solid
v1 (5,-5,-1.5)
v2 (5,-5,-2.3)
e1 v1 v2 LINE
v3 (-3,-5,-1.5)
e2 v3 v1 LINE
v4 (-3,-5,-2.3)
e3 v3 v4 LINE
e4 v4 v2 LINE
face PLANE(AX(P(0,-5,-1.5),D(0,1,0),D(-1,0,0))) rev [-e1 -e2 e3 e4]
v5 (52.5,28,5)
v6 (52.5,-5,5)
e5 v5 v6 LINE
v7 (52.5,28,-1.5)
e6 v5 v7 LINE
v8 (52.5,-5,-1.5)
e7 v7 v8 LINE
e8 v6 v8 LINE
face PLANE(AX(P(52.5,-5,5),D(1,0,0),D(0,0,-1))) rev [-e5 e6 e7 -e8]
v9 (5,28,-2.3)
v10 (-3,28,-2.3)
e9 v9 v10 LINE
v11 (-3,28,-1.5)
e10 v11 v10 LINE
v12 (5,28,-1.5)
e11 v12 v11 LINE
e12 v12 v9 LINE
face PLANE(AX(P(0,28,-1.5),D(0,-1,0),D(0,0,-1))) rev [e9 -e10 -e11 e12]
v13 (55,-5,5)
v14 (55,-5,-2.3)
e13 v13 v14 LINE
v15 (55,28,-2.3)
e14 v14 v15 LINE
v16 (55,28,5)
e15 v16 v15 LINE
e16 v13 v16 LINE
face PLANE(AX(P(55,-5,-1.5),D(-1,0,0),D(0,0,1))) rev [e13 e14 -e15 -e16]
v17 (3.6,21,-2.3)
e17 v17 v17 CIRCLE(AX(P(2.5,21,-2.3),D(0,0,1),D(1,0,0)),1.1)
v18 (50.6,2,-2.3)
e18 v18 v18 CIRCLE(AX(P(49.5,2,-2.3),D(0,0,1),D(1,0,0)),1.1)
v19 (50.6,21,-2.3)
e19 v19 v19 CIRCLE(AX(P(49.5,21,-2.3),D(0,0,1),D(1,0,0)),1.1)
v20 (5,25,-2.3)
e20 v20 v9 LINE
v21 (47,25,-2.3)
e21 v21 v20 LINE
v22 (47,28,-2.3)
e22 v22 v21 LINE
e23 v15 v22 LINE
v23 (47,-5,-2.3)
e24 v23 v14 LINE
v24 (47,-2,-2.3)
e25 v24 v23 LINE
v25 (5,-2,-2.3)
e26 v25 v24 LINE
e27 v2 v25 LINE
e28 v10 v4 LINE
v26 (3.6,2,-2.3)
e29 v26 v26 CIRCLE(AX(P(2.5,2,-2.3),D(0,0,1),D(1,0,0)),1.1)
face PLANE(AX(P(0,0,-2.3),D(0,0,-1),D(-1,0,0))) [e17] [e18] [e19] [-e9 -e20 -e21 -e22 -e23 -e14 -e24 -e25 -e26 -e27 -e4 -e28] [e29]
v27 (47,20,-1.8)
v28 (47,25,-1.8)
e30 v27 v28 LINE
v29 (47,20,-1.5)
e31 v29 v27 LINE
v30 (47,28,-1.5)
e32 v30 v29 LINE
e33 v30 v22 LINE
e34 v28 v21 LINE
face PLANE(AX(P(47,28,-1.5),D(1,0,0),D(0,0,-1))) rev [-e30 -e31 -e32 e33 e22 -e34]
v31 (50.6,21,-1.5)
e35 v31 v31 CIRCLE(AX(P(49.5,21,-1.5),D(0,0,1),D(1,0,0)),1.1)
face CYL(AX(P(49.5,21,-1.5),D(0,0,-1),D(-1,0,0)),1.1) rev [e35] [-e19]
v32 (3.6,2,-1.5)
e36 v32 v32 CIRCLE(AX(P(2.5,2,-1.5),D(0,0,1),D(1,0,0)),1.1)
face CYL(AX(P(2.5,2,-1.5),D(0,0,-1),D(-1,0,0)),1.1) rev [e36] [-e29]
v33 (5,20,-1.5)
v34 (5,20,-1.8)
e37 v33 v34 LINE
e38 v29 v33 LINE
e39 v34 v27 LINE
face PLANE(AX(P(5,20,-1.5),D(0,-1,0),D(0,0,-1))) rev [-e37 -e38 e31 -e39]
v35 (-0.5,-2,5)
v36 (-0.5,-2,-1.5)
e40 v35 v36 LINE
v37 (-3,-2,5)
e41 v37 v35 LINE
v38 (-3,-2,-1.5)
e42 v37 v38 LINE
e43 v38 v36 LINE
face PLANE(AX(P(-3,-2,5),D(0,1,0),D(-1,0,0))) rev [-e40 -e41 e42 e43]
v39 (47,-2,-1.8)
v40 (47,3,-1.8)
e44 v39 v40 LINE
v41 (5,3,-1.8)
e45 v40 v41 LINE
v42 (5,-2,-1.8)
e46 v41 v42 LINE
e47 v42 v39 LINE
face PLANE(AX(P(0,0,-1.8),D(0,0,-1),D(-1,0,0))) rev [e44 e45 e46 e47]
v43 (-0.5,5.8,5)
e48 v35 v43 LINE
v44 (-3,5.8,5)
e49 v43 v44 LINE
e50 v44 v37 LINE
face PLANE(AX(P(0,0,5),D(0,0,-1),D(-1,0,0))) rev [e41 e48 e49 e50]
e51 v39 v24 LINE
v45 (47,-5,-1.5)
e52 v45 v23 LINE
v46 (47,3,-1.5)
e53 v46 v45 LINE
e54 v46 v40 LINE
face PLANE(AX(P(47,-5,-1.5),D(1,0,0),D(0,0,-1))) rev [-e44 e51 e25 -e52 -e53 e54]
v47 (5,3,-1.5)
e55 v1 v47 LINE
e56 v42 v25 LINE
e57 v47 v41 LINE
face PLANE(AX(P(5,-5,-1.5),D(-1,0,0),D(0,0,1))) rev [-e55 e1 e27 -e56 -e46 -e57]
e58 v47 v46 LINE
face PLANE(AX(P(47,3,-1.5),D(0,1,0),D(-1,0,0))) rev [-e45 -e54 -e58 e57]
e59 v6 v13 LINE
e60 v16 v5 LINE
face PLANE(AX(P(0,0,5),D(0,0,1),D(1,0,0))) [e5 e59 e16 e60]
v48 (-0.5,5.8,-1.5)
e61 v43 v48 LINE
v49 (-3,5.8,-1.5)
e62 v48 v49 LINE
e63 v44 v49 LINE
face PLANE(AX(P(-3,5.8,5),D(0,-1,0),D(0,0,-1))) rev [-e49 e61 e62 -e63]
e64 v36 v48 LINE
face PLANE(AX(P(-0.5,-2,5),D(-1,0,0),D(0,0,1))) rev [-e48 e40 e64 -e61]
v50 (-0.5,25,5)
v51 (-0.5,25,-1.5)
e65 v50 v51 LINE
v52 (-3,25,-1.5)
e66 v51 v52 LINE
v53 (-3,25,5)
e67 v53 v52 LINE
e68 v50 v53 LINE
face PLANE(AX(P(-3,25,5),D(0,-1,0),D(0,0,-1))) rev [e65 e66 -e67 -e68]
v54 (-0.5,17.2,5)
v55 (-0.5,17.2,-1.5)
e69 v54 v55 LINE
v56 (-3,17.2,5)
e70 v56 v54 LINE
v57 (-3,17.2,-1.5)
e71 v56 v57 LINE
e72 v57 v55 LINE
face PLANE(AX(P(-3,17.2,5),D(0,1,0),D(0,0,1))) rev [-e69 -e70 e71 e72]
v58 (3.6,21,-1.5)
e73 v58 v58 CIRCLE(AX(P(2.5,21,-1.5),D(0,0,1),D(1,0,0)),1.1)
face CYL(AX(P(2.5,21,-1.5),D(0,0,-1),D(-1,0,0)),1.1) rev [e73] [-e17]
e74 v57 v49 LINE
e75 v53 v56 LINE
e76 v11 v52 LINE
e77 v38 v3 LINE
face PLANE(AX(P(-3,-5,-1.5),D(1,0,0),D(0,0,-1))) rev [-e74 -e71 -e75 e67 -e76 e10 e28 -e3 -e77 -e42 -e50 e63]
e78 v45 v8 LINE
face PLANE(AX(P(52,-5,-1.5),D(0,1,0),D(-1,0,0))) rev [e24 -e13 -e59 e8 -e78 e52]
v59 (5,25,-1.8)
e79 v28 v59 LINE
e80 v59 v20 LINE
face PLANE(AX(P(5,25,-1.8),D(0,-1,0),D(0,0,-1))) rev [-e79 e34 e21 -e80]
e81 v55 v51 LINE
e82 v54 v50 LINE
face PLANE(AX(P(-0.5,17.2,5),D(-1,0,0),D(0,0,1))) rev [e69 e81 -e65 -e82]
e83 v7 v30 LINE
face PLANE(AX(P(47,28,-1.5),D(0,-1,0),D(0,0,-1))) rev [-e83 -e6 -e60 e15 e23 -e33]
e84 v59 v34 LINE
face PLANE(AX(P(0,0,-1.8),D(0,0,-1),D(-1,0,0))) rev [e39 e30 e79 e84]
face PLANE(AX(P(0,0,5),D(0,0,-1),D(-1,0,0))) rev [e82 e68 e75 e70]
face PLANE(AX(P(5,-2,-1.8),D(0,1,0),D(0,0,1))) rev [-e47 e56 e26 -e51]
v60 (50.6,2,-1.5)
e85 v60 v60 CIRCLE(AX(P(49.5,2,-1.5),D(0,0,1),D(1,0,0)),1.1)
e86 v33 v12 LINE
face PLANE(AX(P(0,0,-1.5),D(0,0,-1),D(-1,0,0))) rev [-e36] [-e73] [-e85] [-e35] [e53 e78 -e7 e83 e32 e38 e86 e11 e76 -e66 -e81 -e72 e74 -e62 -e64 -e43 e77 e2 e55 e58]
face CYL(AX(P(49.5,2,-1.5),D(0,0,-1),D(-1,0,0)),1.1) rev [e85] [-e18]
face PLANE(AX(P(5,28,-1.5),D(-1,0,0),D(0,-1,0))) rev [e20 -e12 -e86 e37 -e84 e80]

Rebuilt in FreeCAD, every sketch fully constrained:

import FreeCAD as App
import Part
import Sketcher
from FreeCAD import Vector
Q = App.Units.Quantity

doc = App.newDocument("Part")
body = doc.addObject("PartDesign::Body", "Body")

# Sketch on XY plane
sketch1 = body.newObject("Sketcher::SketchObject", "Sketch")
sketch1.AttachmentSupport = (doc.getObject("XY_Plane"), [""])
sketch1.MapMode = "FlatFace"
sketch1.AttachmentOffset = App.Placement(Vector(0, 0, -2.3), App.Rotation())
sketch1.addGeometry([
    Part.LineSegment(Vector(55, -5, 0), Vector(55, 28, 0)),  # 0
    Part.LineSegment(Vector(55, 28, 0), Vector(47, 28, 0)),  # 1
    Part.LineSegment(Vector(47, 28, 0), Vector(47, 20, 0)),  # 2
    Part.LineSegment(Vector(47, 20, 0), Vector(5, 20, 0)),  # 3
    Part.LineSegment(Vector(5, 20, 0), Vector(5, 28, 0)),  # 4
    Part.LineSegment(Vector(5, 28, 0), Vector(-3, 28, 0)),  # 5
    Part.LineSegment(Vector(-3, 28, 0), Vector(-3, -5, 0)),  # 6
    Part.LineSegment(Vector(-3, -5, 0), Vector(5, -5, 0)),  # 7
    Part.LineSegment(Vector(5, -5, 0), Vector(5, 3, 0)),  # 8
    Part.LineSegment(Vector(5, 3, 0), Vector(47, 3, 0)),  # 9
    Part.LineSegment(Vector(47, 3, 0), Vector(47, -5, 0)),  # 10
    Part.LineSegment(Vector(47, -5, 0), Vector(55, -5, 0)),  # 11
    Part.Circle(Vector(2.5, 2, 0), Vector(0, 0, 1), 1.1),  # 12
    Part.Circle(Vector(49.5, 2, 0), Vector(0, 0, 1), 1.1),  # 13
    Part.Circle(Vector(2.5, 21, 0), Vector(0, 0, 1), 1.1),  # 14
    Part.Circle(Vector(49.5, 21, 0), Vector(0, 0, 1), 1.1),  # 15
], False)
sketch1.addConstraint([
    Sketcher.Constraint("Coincident", 0, 2, 1, 1),
    Sketcher.Constraint("Coincident", 1, 2, 2, 1),
    Sketcher.Constraint("Coincident", 2, 2, 3, 1),
    Sketcher.Constraint("Coincident", 3, 2, 4, 1),
    Sketcher.Constraint("Coincident", 4, 2, 5, 1),
    Sketcher.Constraint("Coincident", 5, 2, 6, 1),
    Sketcher.Constraint("Coincident", 6, 2, 7, 1),
    Sketcher.Constraint("Coincident", 7, 2, 8, 1),
    Sketcher.Constraint("Coincident", 8, 2, 9, 1),
    Sketcher.Constraint("Coincident", 9, 2, 10, 1),
    Sketcher.Constraint("Coincident", 10, 2, 11, 1),
    Sketcher.Constraint("Coincident", 11, 2, 0, 1),
    Sketcher.Constraint("Vertical", 0),
    Sketcher.Constraint("Horizontal", 1),
    Sketcher.Constraint("Vertical", 2),
    Sketcher.Constraint("Horizontal", 3),
    Sketcher.Constraint("Vertical", 4),
    Sketcher.Constraint("Horizontal", 5),
    Sketcher.Constraint("Vertical", 6),
    Sketcher.Constraint("Horizontal", 7),
    Sketcher.Constraint("Vertical", 8),
    Sketcher.Constraint("Horizontal", 9),
    Sketcher.Constraint("Vertical", 10),
    Sketcher.Constraint("Horizontal", 11),
    Sketcher.Constraint("Equal", 12, 13),
    Sketcher.Constraint("Equal", 13, 14),
    Sketcher.Constraint("Equal", 14, 15),
    Sketcher.Constraint("Horizontal", 12, 3, 13, 3),
    Sketcher.Constraint("Horizontal", 14, 3, 15, 3),
    Sketcher.Constraint("Horizontal", 1, 2, 4, 2),
    Sketcher.Constraint("Horizontal", 7, 2, 10, 2),
    Sketcher.Constraint("Vertical", 12, 3, 14, 3),
    Sketcher.Constraint("Vertical", 13, 3, 15, 3),
    Sketcher.Constraint("Vertical", 4, 2, 7, 2),
    Sketcher.Constraint("Vertical", 2, 2, 9, 2),
    Sketcher.Constraint("Equal", 1, 5),
    Sketcher.Constraint("Equal", 11, 2),
    Sketcher.Constraint("Equal", 4, 8),
    Sketcher.Constraint("Diameter", 12, Q("2.2 mm")),
    Sketcher.Constraint("DistanceX", 1, 2, 1, 1, Q("8 mm")),
    Sketcher.Constraint("DistanceX", 3, 2, 3, 1, Q("42 mm")),
    Sketcher.Constraint("DistanceY", 0, 1, 0, 2, Q("33 mm")),
    Sketcher.Constraint("DistanceY", -1, 1, 12, 3, Q("2 mm")),
    Sketcher.Constraint("DistanceY", -1, 1, 14, 3, Q("21 mm")),
    Sketcher.Constraint("DistanceX", -1, 1, 0, 2, Q("55 mm")),
    Sketcher.Constraint("DistanceY", -1, 1, 0, 2, Q("28 mm")),
    Sketcher.Constraint("DistanceX", 12, 3, 13, 3, Q("47 mm")),
    Sketcher.Constraint("DistanceX", -1, 1, 12, 3, Q("2.5 mm")),
])
pad1 = body.newObject("PartDesign::Pad", "Pad")
pad1.Profile = sketch1
pad1.Length = 0.8

# Sketch on XY plane
sketch2 = body.newObject("Sketcher::SketchObject", "Sketch001")
sketch2.AttachmentSupport = (doc.getObject("XY_Plane"), [""])
sketch2.MapMode = "FlatFace"
sketch2.AttachmentOffset = App.Placement(Vector(0, 0, -2.3), App.Rotation())
sketch2.addGeometry([
    Part.LineSegment(Vector(5, 25, 0), Vector(5, -2, 0)),
    Part.LineSegment(Vector(5, -2, 0), Vector(47, -2, 0)),
    Part.LineSegment(Vector(47, -2, 0), Vector(47, 25, 0)),
    Part.LineSegment(Vector(47, 25, 0), Vector(5, 25, 0)),
], False)
sketch2.addConstraint([
    Sketcher.Constraint("Coincident", 0, 2, 1, 1),
    Sketcher.Constraint("Coincident", 1, 2, 2, 1),
    Sketcher.Constraint("Coincident", 2, 2, 3, 1),
    Sketcher.Constraint("Coincident", 3, 2, 0, 1),
    Sketcher.Constraint("Vertical", 0),
    Sketcher.Constraint("Horizontal", 1),
    Sketcher.Constraint("Vertical", 2),
    Sketcher.Constraint("Horizontal", 3),
    Sketcher.Constraint("DistanceX", 1, 1, 1, 2, Q("42 mm")),
    Sketcher.Constraint("DistanceY", 0, 2, 0, 1, Q("27 mm")),
    Sketcher.Constraint("DistanceX", -1, 1, 0, 2, Q("5 mm")),
    Sketcher.Constraint("DistanceY", 0, 2, -1, 1, Q("2 mm")),
])
pad2 = body.newObject("PartDesign::Pad", "Pad001")
pad2.Profile = sketch2
pad2.Length = 0.5

# Sketch on XY plane
sketch3 = body.newObject("Sketcher::SketchObject", "Sketch002")
sketch3.AttachmentSupport = (doc.getObject("XY_Plane"), [""])
sketch3.MapMode = "FlatFace"
sketch3.AttachmentOffset = App.Placement(Vector(0, 0, -1.5), App.Rotation())
sketch3.addGeometry([
    Part.LineSegment(Vector(52.5, 28, 0), Vector(52.5, -5, 0)),  # 0
    Part.LineSegment(Vector(52.5, -5, 0), Vector(55, -5, 0)),  # 1
    Part.LineSegment(Vector(55, -5, 0), Vector(55, 28, 0)),  # 2
    Part.LineSegment(Vector(55, 28, 0), Vector(52.5, 28, 0)),  # 3
    Part.LineSegment(Vector(-3, 5.8, 0), Vector(-3, -2, 0)),  # 4
    Part.LineSegment(Vector(-3, -2, 0), Vector(-0.5, -2, 0)),  # 5
    Part.LineSegment(Vector(-0.5, -2, 0), Vector(-0.5, 5.8, 0)),  # 6
    Part.LineSegment(Vector(-0.5, 5.8, 0), Vector(-3, 5.8, 0)),  # 7
    Part.LineSegment(Vector(-3, 25, 0), Vector(-3, 17.2, 0)),  # 8
    Part.LineSegment(Vector(-3, 17.2, 0), Vector(-0.5, 17.2, 0)),  # 9
    Part.LineSegment(Vector(-0.5, 17.2, 0), Vector(-0.5, 25, 0)),  # 10
    Part.LineSegment(Vector(-0.5, 25, 0), Vector(-3, 25, 0)),  # 11
], False)
sketch3.addConstraint([
    Sketcher.Constraint("Coincident", 0, 2, 1, 1),
    Sketcher.Constraint("Coincident", 1, 2, 2, 1),
    Sketcher.Constraint("Coincident", 2, 2, 3, 1),
    Sketcher.Constraint("Coincident", 3, 2, 0, 1),
    Sketcher.Constraint("Coincident", 4, 2, 5, 1),
    Sketcher.Constraint("Coincident", 5, 2, 6, 1),
    Sketcher.Constraint("Coincident", 6, 2, 7, 1),
    Sketcher.Constraint("Coincident", 7, 2, 4, 1),
    Sketcher.Constraint("Coincident", 8, 2, 9, 1),
    Sketcher.Constraint("Coincident", 9, 2, 10, 1),
    Sketcher.Constraint("Coincident", 10, 2, 11, 1),
    Sketcher.Constraint("Coincident", 11, 2, 8, 1),
    Sketcher.Constraint("Vertical", 0),
    Sketcher.Constraint("Horizontal", 1),
    Sketcher.Constraint("Vertical", 2),
    Sketcher.Constraint("Horizontal", 3),
    Sketcher.Constraint("Vertical", 4),
    Sketcher.Constraint("Horizontal", 5),
    Sketcher.Constraint("Vertical", 6),
    Sketcher.Constraint("Horizontal", 7),
    Sketcher.Constraint("Vertical", 8),
    Sketcher.Constraint("Horizontal", 9),
    Sketcher.Constraint("Vertical", 10),
    Sketcher.Constraint("Horizontal", 11),
    Sketcher.Constraint("Vertical", 7, 2, 8, 2),
    Sketcher.Constraint("Vertical", 6, 2, 9, 2),
    Sketcher.Constraint("Equal", 3, 5),
    Sketcher.Constraint("Equal", 6, 8),
    Sketcher.Constraint("DistanceY", 0, 2, 0, 1, Q("33 mm")),
    Sketcher.Constraint("DistanceX", 1, 1, 1, 2, Q("2.5 mm")),
    Sketcher.Constraint("DistanceY", 4, 2, 4, 1, Q("7.8 mm")),
    Sketcher.Constraint("DistanceY", 0, 2, -1, 1, Q("5 mm")),
    Sketcher.Constraint("DistanceX", -1, 1, 1, 2, Q("55 mm")),
    Sketcher.Constraint("DistanceX", 4, 2, -1, 1, Q("3 mm")),
    Sketcher.Constraint("DistanceY", 4, 2, -1, 1, Q("2 mm")),
    Sketcher.Constraint("DistanceY", -1, 1, 10, 2, Q("25 mm")),
])
pad3 = body.newObject("PartDesign::Pad", "Pad002")
pad3.Profile = sketch3
pad3.Length = 6.5

doc.recompute()
